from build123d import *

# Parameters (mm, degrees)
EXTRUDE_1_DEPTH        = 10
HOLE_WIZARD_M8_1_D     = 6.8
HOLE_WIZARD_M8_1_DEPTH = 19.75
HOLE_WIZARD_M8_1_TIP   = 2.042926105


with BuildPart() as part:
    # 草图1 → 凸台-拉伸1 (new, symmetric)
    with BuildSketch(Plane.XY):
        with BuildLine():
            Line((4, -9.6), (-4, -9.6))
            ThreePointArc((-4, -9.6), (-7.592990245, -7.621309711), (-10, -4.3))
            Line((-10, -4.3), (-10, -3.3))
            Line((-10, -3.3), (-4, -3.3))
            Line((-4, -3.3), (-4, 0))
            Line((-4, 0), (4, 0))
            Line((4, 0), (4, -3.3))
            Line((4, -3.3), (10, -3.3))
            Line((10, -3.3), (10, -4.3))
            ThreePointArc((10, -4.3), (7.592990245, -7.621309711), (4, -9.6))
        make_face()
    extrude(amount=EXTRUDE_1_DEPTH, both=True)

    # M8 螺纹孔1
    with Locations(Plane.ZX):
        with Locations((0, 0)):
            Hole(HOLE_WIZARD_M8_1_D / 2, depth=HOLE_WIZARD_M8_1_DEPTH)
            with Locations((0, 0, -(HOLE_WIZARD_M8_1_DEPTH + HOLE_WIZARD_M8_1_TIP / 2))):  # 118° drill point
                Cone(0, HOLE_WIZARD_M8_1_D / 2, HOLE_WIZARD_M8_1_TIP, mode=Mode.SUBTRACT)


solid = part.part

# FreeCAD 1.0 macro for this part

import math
import FreeCAD as App
import Part
import Sketcher
Q = App.Units.Quantity

doc = App.newDocument("Part")
body = doc.addObject("PartDesign::Body", "Body")

# Sketch on XY plane
sketch1 = body.newObject("Sketcher::SketchObject", "Sketch")
sketch1.AttachmentSupport = (doc.getObject("XY_Plane"), [""])
sketch1.MapMode = "FlatFace"
sketch1.addGeometry(Part.LineSegment(App.Vector(-4, -9.6, 0), App.Vector(4, -9.6, 0)), False)
sketch1.addGeometry(Part.ArcOfCircle(Part.Circle(App.Vector(1.375234, -0.582341, 0), App.Vector(0, 0, 1), 9.391889), math.radians(-73.771332), math.radians(-23.318201)), False)
sketch1.addGeometry(Part.LineSegment(App.Vector(10, -4.3, 0), App.Vector(10, -3.3, 0)), False)
sketch1.addGeometry(Part.LineSegment(App.Vector(10, -3.3, 0), App.Vector(4, -3.3, 0)), False)
sketch1.addGeometry(Part.LineSegment(App.Vector(4, -3.3, 0), App.Vector(4, 0, 0)), False)
sketch1.addGeometry(Part.LineSegment(App.Vector(4, 0, 0), App.Vector(-4, 0, 0)), False)
sketch1.addGeometry(Part.LineSegment(App.Vector(-4, 0, 0), App.Vector(-4, -3.3, 0)), False)
sketch1.addGeometry(Part.LineSegment(App.Vector(-4, -3.3, 0), App.Vector(-10, -3.3, 0)), False)
sketch1.addGeometry(Part.LineSegment(App.Vector(-10, -3.3, 0), App.Vector(-10, -4.3, 0)), False)
sketch1.addGeometry(Part.ArcOfCircle(Part.Circle(App.Vector(-1.375234, -0.582341, 0), App.Vector(0, 0, 1), 9.391889), math.radians(-156.681799), math.radians(-106.228668)), False)
sketch1.addConstraint(Sketcher.Constraint("Coincident", 0, 2, 1, 1))
sketch1.addConstraint(Sketcher.Constraint("Coincident", 1, 2, 2, 1))
sketch1.addConstraint(Sketcher.Constraint("Coincident", 2, 2, 3, 1))
sketch1.addConstraint(Sketcher.Constraint("Coincident", 3, 2, 4, 1))
sketch1.addConstraint(Sketcher.Constraint("Coincident", 4, 2, 5, 1))
sketch1.addConstraint(Sketcher.Constraint("Coincident", 5, 2, 6, 1))
sketch1.addConstraint(Sketcher.Constraint("Coincident", 6, 2, 7, 1))
sketch1.addConstraint(Sketcher.Constraint("Coincident", 7, 2, 8, 1))
sketch1.addConstraint(Sketcher.Constraint("Coincident", 8, 2, 9, 1))
sketch1.addConstraint(Sketcher.Constraint("Coincident", 9, 2, 0, 1))
sketch1.addConstraint(Sketcher.Constraint("Horizontal", 0))
sketch1.addConstraint(Sketcher.Constraint("Vertical", 2))
sketch1.addConstraint(Sketcher.Constraint("Horizontal", 3))
sketch1.addConstraint(Sketcher.Constraint("Vertical", 4))
sketch1.addConstraint(Sketcher.Constraint("Horizontal", 5))
sketch1.addConstraint(Sketcher.Constraint("Vertical", 6))
sketch1.addConstraint(Sketcher.Constraint("Horizontal", 7))
sketch1.addConstraint(Sketcher.Constraint("Vertical", 8))
sketch1.addConstraint(Sketcher.Constraint("Equal", 1, 9))
sketch1.addConstraint(Sketcher.Constraint("Symmetric", 4, 2, 5, 2, -1, 1))
sketch1.addConstraint(Sketcher.Constraint("Symmetric", 1, 3, 9, 3, -2))
sketch1.addConstraint(Sketcher.Constraint("Symmetric", 2, 2, 7, 2, -2))
sketch1.addConstraint(Sketcher.Constraint("Vertical", 0, 2, 3, 2))
sketch1.addConstraint(Sketcher.Constraint("DistanceX", 0, 1, 0, 2, Q("8 mm")))
sketch1.addConstraint(Sketcher.Constraint("DistanceX", 3, 2, 3, 1, Q("6 mm")))
sketch1.addConstraint(Sketcher.Constraint("DistanceY", 2, 1, 2, 2, Q("1 mm")))
sketch1.addConstraint(Sketcher.Constraint("DistanceY", 4, 1, 4, 2, Q("3.3 mm")))
sketch1.addConstraint(Sketcher.Constraint("DistanceY", 0, 2, -1, 1, Q("9.6 mm")))
sketch1.addConstraint(Sketcher.Constraint("Radius", 1, Q("9.391889 mm")))
pad1 = body.newObject("PartDesign::Pad", "Pad")
pad1.Profile = sketch1
pad1.Length = 20
pad1.Midplane = True

# Sketch on XZ plane
sketch2 = body.newObject("Sketcher::SketchObject", "Sketch001")
sketch2.AttachmentSupport = (doc.getObject("XZ_Plane"), [""])
sketch2.MapMode = "FlatFace"
sketch2.addGeometry(Part.Circle(App.Vector(0, 0, 0), App.Vector(0, 0, 1), 3.4), False)
sketch2.addConstraint(Sketcher.Constraint("Coincident", 0, 3, -1, 1))
sketch2.addConstraint(Sketcher.Constraint("Diameter", 0, Q("6.8 mm")))
doc.recompute()
hole = body.newObject("PartDesign::Hole", "Hole")
hole.Profile = sketch2
hole.ThreadType = "None"
hole.Diameter = 6.8
hole.DepthType = "Dimension"
hole.Depth = 19.75
hole.DrillPoint = "Angled"
hole.DrillPointAngle = 118
hole.Reversed = True

doc.recompute()
